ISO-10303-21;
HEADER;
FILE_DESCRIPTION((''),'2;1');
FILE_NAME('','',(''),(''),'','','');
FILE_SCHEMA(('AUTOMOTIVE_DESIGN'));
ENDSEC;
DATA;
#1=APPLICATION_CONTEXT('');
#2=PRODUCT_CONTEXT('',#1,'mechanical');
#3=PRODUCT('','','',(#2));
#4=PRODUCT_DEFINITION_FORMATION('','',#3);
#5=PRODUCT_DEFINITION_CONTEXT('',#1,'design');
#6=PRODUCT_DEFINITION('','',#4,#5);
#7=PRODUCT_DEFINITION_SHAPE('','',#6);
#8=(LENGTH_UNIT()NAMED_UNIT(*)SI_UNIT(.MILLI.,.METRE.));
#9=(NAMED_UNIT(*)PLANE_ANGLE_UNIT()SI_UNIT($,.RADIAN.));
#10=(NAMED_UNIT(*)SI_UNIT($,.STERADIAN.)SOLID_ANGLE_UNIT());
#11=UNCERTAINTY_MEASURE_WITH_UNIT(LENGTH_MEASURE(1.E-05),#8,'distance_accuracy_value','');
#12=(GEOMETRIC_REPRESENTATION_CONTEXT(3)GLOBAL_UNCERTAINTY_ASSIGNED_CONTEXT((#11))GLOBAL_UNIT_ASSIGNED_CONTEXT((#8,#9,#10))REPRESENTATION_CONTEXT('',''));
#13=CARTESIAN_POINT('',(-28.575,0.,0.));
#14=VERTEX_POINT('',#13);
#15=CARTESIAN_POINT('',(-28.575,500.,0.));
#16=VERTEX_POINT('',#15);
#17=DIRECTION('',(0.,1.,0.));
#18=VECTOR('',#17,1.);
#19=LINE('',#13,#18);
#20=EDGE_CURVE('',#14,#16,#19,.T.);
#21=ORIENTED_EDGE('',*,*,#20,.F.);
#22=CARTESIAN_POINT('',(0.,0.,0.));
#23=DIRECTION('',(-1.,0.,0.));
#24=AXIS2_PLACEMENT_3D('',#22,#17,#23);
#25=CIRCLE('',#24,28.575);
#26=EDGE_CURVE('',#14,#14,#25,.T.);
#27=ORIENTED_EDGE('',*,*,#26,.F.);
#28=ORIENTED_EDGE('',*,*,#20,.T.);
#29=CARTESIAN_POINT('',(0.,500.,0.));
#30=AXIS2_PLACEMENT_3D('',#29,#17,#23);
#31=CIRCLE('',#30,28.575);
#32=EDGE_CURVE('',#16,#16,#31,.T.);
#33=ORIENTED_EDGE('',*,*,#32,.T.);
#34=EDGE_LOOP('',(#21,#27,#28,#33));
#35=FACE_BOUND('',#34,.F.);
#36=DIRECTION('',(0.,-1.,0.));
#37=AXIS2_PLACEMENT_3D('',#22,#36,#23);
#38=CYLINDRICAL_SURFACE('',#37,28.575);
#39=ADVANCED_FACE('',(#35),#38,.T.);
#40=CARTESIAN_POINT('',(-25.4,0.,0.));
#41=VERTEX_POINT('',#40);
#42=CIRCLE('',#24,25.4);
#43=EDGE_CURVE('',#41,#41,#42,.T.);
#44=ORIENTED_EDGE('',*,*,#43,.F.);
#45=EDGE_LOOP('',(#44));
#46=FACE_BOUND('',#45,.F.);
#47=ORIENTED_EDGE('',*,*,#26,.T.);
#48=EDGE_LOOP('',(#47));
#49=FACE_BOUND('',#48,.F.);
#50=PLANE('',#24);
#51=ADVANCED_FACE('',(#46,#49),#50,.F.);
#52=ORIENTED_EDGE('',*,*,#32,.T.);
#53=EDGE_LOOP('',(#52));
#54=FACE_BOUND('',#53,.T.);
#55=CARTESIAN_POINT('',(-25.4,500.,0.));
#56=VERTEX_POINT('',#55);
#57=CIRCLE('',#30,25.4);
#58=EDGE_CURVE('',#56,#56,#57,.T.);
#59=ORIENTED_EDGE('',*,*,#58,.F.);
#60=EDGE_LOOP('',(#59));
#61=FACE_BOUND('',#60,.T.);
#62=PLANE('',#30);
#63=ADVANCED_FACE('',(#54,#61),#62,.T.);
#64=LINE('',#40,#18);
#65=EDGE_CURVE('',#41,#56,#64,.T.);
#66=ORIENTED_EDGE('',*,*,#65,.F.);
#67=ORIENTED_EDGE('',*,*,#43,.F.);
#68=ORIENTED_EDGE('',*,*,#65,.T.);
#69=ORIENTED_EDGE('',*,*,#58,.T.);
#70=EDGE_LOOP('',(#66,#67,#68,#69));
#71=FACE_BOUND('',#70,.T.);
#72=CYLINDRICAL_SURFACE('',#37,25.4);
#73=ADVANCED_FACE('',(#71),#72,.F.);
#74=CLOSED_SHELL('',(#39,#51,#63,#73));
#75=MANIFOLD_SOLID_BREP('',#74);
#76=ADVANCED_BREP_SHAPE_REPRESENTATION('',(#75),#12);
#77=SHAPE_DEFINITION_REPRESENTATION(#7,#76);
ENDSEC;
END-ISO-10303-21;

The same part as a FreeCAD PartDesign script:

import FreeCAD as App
import Part
import Sketcher
from FreeCAD import Vector
Q = App.Units.Quantity

doc = App.newDocument("Part")
body = doc.addObject("PartDesign::Body", "Body")

# Sketch on XZ plane
sketch1 = body.newObject("Sketcher::SketchObject", "Sketch")
sketch1.AttachmentSupport = (doc.getObject("XZ_Plane"), [""])
sketch1.MapMode = "FlatFace"
sketch1.addGeometry([
    Part.Circle(Vector(0, 0, 0), Vector(0, 0, 1), 28.575),
    Part.Circle(Vector(0, 0, 0), Vector(0, 0, 1), 25.4),
], False)
sketch1.addConstraint([
    Sketcher.Constraint("Coincident", 0, 3, -1, 1),
    Sketcher.Constraint("Coincident", 1, 3, -1, 1),
    Sketcher.Constraint("Diameter", 1, Q("2 in")),
    Sketcher.Constraint("Diameter", 0, Q("2.25 in")),
])
pad1 = body.newObject("PartDesign::Pad", "Pad")
pad1.Profile = sketch1
pad1.Length = 500
pad1.Reversed = True

doc.recompute()
